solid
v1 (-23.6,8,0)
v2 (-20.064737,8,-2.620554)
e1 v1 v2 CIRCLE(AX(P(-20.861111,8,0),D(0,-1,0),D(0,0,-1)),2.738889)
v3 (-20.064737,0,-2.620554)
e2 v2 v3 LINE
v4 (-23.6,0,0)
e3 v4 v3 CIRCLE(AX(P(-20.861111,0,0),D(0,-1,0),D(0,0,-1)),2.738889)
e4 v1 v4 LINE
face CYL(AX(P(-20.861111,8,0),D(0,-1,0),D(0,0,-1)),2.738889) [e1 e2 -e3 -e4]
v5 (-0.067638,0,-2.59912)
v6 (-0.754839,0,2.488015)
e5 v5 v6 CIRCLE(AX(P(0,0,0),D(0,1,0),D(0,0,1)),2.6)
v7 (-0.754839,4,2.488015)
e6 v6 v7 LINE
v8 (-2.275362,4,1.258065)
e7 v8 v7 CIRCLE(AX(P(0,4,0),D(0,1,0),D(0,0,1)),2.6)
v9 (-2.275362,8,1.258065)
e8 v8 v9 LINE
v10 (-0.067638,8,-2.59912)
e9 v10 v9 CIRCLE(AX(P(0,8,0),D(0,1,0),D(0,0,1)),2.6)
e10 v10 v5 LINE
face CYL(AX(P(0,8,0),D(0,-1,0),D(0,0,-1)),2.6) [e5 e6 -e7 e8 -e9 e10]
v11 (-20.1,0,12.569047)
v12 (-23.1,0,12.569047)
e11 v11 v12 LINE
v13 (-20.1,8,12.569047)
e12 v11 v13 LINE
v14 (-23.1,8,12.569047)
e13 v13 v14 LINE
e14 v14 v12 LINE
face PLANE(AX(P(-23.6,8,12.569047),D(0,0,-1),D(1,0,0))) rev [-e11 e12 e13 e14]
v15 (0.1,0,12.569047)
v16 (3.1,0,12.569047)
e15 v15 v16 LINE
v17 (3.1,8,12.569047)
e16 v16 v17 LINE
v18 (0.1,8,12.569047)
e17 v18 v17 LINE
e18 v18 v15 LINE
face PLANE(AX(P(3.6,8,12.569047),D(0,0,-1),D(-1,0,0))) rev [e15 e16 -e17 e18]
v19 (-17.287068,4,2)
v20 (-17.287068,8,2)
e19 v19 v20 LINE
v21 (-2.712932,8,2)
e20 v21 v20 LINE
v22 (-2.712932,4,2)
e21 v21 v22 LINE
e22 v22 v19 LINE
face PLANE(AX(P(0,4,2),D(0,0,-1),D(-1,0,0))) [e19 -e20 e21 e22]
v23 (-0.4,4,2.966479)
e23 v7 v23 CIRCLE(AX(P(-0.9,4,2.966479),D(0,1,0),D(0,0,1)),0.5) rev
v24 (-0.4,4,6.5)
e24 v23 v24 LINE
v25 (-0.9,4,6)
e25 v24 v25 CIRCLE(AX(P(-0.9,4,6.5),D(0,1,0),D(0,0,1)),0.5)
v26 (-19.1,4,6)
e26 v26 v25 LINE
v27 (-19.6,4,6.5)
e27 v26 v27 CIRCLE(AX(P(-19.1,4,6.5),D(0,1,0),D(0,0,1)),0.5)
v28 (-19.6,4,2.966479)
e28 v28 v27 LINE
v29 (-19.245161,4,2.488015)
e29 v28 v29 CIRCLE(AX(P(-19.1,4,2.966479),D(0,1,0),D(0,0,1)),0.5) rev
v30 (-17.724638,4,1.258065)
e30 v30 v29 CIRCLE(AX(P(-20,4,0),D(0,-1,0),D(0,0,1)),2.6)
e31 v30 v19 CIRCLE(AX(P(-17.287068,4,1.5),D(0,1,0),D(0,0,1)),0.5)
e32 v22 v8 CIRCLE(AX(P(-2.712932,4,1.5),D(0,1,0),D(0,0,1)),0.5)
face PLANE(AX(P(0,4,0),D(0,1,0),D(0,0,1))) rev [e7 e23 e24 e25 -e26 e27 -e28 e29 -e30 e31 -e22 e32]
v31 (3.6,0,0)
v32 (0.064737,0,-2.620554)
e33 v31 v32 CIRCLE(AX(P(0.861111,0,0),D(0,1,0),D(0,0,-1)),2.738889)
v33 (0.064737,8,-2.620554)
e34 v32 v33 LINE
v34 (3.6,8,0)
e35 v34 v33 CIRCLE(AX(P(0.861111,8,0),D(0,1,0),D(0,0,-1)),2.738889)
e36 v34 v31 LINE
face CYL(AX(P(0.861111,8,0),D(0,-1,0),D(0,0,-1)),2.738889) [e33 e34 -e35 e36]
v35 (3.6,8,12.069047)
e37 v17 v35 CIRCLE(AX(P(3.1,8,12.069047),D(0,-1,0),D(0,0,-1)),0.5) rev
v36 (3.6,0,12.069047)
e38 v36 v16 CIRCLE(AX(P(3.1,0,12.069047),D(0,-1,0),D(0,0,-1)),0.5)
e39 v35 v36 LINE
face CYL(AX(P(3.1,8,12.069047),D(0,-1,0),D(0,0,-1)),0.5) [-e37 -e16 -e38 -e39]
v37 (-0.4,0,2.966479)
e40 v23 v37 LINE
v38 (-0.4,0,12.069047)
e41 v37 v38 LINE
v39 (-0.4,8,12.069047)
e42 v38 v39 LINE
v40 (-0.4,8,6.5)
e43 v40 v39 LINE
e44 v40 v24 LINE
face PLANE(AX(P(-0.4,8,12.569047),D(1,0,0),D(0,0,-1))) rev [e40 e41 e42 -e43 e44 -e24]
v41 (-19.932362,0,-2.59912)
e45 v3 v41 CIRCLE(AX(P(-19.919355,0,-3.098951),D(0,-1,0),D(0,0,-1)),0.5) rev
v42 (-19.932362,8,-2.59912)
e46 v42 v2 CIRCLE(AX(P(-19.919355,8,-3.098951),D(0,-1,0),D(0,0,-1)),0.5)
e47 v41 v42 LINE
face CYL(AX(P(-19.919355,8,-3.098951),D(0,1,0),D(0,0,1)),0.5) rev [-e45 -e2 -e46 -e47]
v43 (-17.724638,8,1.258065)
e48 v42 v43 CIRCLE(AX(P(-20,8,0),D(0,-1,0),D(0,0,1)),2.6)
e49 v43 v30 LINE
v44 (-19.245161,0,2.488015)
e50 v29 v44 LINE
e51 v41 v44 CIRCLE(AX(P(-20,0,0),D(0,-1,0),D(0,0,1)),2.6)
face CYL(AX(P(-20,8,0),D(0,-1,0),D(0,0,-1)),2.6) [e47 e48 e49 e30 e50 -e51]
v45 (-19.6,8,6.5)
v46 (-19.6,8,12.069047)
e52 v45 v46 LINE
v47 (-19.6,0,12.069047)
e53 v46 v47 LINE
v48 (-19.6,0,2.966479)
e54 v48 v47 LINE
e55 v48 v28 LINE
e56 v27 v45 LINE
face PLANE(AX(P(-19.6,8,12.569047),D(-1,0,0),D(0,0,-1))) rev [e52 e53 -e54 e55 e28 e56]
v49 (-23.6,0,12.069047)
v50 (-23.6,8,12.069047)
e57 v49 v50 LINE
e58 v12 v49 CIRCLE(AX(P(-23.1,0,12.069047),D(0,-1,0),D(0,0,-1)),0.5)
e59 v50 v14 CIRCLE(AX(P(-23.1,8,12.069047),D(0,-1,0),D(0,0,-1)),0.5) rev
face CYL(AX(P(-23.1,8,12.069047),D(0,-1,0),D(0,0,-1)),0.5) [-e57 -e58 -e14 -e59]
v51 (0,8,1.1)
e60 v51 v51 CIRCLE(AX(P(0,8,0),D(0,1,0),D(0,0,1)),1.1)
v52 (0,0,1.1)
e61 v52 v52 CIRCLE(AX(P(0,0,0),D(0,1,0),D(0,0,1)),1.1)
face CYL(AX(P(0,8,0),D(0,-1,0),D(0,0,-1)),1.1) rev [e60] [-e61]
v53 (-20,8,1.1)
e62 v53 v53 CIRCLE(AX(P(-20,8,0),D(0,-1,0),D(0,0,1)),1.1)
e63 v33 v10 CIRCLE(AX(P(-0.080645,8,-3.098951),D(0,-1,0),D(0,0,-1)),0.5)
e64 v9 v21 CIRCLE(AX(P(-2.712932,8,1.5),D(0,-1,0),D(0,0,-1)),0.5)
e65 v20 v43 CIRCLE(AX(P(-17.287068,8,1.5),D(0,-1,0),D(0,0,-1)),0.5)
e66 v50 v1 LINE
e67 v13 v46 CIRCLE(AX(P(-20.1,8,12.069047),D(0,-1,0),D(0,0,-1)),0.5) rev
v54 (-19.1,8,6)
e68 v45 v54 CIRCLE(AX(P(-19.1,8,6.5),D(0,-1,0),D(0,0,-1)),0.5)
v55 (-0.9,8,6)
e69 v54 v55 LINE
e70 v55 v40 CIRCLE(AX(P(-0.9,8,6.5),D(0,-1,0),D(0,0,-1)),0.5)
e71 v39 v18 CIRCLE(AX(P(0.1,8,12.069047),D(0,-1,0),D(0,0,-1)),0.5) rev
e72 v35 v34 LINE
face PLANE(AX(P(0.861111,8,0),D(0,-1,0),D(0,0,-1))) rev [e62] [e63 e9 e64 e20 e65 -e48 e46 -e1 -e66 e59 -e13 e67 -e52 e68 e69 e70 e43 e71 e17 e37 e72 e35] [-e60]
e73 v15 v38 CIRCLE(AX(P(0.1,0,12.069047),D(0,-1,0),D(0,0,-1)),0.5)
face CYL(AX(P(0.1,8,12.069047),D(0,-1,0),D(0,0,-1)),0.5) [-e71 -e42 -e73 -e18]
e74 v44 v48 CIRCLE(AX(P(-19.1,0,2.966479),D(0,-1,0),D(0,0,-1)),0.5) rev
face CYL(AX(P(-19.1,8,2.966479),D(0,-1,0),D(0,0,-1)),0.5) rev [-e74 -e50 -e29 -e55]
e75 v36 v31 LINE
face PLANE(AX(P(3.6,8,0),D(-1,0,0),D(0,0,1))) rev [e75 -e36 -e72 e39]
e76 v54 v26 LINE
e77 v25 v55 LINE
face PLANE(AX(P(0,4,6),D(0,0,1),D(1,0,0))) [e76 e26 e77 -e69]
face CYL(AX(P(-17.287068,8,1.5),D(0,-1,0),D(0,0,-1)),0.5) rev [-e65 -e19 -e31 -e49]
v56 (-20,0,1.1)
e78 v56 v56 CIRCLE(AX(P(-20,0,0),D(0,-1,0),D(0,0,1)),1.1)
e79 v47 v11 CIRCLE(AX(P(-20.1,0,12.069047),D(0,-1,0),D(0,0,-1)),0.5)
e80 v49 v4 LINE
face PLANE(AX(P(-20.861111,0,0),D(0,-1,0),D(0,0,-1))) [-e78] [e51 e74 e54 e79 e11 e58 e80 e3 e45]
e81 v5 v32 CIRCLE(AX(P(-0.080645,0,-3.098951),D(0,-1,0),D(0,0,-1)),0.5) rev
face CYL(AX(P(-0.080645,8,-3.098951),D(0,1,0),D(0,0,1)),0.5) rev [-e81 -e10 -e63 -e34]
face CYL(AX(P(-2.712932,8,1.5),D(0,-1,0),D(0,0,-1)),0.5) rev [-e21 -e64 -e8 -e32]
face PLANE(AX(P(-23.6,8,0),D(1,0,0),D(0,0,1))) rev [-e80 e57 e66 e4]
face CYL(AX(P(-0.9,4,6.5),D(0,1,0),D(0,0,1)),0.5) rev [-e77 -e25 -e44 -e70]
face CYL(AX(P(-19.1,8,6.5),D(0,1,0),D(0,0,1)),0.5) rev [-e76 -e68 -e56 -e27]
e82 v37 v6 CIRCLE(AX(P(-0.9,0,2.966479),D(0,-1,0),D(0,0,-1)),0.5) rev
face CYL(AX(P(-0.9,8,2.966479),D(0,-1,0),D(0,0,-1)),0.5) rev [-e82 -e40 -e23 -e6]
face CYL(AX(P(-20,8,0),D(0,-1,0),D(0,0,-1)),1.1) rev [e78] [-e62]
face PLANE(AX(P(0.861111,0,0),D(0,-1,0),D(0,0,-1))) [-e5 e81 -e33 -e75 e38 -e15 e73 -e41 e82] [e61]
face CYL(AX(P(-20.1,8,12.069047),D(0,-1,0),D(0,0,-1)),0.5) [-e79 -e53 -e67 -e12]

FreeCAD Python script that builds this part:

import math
import FreeCAD as App
import Part
import Sketcher
Q = App.Units.Quantity


def edges_at(feature, points):
    """Names of the edges that pass closest to the given points."""
    edges = feature.Shape.Edges
    near = lambda p: min(range(len(edges)), key=lambda i: edges[i].distToShape(Part.Vertex(*p))[0])
    return sorted({f"Edge{near(p) + 1}" for p in points})

doc = App.newDocument("Part")
body = doc.addObject("PartDesign::Body", "Body")

# Sketch on XZ plane
sketch1 = doc.addObject("Sketcher::SketchObject", "Sketch")
body.addObject(sketch1)
sketch1.AttachmentSupport = (doc.XZ_Plane, [""])
sketch1.MapMode = "FlatFace"
sketch1.addGeometry([
    Part.LineSegment(App.Vector(3.6, 12.569047, 0), App.Vector(3.6, 0, 0)),  # 0
    Part.ArcOfCircle(Part.Circle(App.Vector(0.861111, 0, 0), App.Vector(0, 0, 1), 2.738889), math.radians(-108.324694), math.radians(0)),  # 1
    Part.ArcOfCircle(Part.Circle(App.Vector(0, 0, 0), App.Vector(0, 0, 1), 2.6), math.radians(98.849883), math.radians(270)),  # 2
    Part.LineSegment(App.Vector(-0.4, 2.569047, 0), App.Vector(-0.4, 12.569047, 0)),  # 3
    Part.LineSegment(App.Vector(-0.4, 12.569047, 0), App.Vector(3.6, 12.569047, 0)),  # 4
    Part.Circle(App.Vector(0, 0, 0), App.Vector(0, 0, 1), 1.1),  # 5
], False)
sketch1.addConstraint([
    Sketcher.Constraint("Tangent", 0, 2, 1, 2),
    Sketcher.Constraint("Coincident", 1, 1, 2, 2),
    Sketcher.Constraint("Coincident", 2, 1, 3, 1),
    Sketcher.Constraint("Coincident", 3, 2, 4, 1),
    Sketcher.Constraint("Coincident", 4, 2, 0, 1),
    Sketcher.Constraint("Vertical", 0),
    Sketcher.Constraint("Vertical", 3),
    Sketcher.Constraint("Horizontal", 4),
    Sketcher.Constraint("Coincident", 2, 3, -1, 1),
    Sketcher.Constraint("Coincident", 5, 3, -1, 1),
    Sketcher.Constraint("PointOnObject", 1, 3, -1),
    Sketcher.Constraint("PointOnObject", 1, 1, -2),
    Sketcher.Constraint("Diameter", 5, Q("2.2 mm")),
    Sketcher.Constraint("Radius", 2, Q("2.6 mm")),
    Sketcher.Constraint("DistanceX", 4, 1, 4, 2, Q("4 mm")),
    Sketcher.Constraint("DistanceY", 3, 1, 3, 2, Q("10 mm")),
    Sketcher.Constraint("DistanceX", -1, 1, 0, 2, Q("3.6 mm")),
])
pad1 = doc.addObject("PartDesign::Pad", "Pad")
body.addObject(pad1)
pad1.Profile = sketch1
pad1.Length = 8
pad1.Reversed = True

# Sketch on XZ plane
sketch2 = doc.addObject("Sketcher::SketchObject", "Sketch001")
body.addObject(sketch2)
sketch2.AttachmentSupport = (doc.XZ_Plane, [""])
sketch2.MapMode = "FlatFace"
sketch2.AttachmentOffset = App.Placement(App.Vector(0, 0, -4), App.Rotation())
sketch2.addGeometry([
    Part.ArcOfCircle(Part.Circle(App.Vector(0, 0, 0), App.Vector(0, 0, 1), 2.6), math.radians(98.849883), math.radians(129.715137)),  # 0
    Part.LineSegment(App.Vector(-1.661325, 2, 0), App.Vector(-10, 2, 0)),  # 1
    Part.LineSegment(App.Vector(-10, 2, 0), App.Vector(-10, 6, 0)),  # 2
    Part.LineSegment(App.Vector(-10, 6, 0), App.Vector(-0.4, 6, 0)),  # 3
    Part.LineSegment(App.Vector(-0.4, 6, 0), App.Vector(-0.4, 2.569047, 0)),  # 4
], False)
sketch2.addConstraint([
    Sketcher.Constraint("Coincident", 0, 2, 1, 1),
    Sketcher.Constraint("Coincident", 1, 2, 2, 1),
    Sketcher.Constraint("Coincident", 2, 2, 3, 1),
    Sketcher.Constraint("Coincident", 3, 2, 4, 1),
    Sketcher.Constraint("Coincident", 4, 2, 0, 1),
    Sketcher.Constraint("Horizontal", 1),
    Sketcher.Constraint("Vertical", 2),
    Sketcher.Constraint("Horizontal", 3),
    Sketcher.Constraint("Vertical", 4),
    Sketcher.Constraint("Coincident", 0, 3, -1, 1),
    Sketcher.Constraint("Radius", 0, Q("2.6 mm")),
    Sketcher.Constraint("DistanceY", 2, 1, 2, 2, Q("4 mm")),
    Sketcher.Constraint("DistanceX", 3, 1, 3, 2, Q("9.6 mm")),
    Sketcher.Constraint("DistanceY", -1, 1, 0, 2, Q("2 mm")),
    Sketcher.Constraint("DistanceX", 1, 2, -1, 1, Q("10 mm")),
])
pad2 = doc.addObject("PartDesign::Pad", "Pad001")
body.addObject(pad2)
pad2.Profile = sketch2
pad2.Length = 4
pad2.Reversed = True
body2 = doc.addObject("PartDesign::Body", "Body001")
doc.recompute()

body2.BaseFeature = body
doc.recompute()

mirroring = doc.addObject("Part::Mirroring", "Mirroring")
mirroring.Source = body
mirroring.Base = App.Vector(-10, 0, 0)
mirroring.Normal = App.Vector(-1, 0, 0)
body3 = doc.addObject("PartDesign::Body", "Body002")
body3.BaseFeature = mirroring
boolean = doc.addObject("PartDesign::Boolean", "Boolean")
body2.addObject(boolean)
boolean.Type = "Fuse"
boolean.addObjects([body3])
doc.recompute()

fillet = doc.addObject("PartDesign::Fillet", "Fillet")
body2.addObject(fillet)
fillet.Base = (boolean, edges_at(boolean, [
    (-0.4, 2, 2.569),
    (-1.661, 6, 2),
    (-0.4, 6, 6),
    (-20, 4, -2.6),
    (-19.6, 2, 2.569),
    (-19.6, 4, 12.569),
    (-19.6, 6, 6),
    (-23.6, 4, 12.569),
    (-18.339, 6, 2),
    (3.6, 4, 12.569),
    (-0.4, 4, 12.569),
    (0, 4, -2.6),
]))
fillet.Radius = 0.5
mirroring.Visibility = False

doc.recompute()
